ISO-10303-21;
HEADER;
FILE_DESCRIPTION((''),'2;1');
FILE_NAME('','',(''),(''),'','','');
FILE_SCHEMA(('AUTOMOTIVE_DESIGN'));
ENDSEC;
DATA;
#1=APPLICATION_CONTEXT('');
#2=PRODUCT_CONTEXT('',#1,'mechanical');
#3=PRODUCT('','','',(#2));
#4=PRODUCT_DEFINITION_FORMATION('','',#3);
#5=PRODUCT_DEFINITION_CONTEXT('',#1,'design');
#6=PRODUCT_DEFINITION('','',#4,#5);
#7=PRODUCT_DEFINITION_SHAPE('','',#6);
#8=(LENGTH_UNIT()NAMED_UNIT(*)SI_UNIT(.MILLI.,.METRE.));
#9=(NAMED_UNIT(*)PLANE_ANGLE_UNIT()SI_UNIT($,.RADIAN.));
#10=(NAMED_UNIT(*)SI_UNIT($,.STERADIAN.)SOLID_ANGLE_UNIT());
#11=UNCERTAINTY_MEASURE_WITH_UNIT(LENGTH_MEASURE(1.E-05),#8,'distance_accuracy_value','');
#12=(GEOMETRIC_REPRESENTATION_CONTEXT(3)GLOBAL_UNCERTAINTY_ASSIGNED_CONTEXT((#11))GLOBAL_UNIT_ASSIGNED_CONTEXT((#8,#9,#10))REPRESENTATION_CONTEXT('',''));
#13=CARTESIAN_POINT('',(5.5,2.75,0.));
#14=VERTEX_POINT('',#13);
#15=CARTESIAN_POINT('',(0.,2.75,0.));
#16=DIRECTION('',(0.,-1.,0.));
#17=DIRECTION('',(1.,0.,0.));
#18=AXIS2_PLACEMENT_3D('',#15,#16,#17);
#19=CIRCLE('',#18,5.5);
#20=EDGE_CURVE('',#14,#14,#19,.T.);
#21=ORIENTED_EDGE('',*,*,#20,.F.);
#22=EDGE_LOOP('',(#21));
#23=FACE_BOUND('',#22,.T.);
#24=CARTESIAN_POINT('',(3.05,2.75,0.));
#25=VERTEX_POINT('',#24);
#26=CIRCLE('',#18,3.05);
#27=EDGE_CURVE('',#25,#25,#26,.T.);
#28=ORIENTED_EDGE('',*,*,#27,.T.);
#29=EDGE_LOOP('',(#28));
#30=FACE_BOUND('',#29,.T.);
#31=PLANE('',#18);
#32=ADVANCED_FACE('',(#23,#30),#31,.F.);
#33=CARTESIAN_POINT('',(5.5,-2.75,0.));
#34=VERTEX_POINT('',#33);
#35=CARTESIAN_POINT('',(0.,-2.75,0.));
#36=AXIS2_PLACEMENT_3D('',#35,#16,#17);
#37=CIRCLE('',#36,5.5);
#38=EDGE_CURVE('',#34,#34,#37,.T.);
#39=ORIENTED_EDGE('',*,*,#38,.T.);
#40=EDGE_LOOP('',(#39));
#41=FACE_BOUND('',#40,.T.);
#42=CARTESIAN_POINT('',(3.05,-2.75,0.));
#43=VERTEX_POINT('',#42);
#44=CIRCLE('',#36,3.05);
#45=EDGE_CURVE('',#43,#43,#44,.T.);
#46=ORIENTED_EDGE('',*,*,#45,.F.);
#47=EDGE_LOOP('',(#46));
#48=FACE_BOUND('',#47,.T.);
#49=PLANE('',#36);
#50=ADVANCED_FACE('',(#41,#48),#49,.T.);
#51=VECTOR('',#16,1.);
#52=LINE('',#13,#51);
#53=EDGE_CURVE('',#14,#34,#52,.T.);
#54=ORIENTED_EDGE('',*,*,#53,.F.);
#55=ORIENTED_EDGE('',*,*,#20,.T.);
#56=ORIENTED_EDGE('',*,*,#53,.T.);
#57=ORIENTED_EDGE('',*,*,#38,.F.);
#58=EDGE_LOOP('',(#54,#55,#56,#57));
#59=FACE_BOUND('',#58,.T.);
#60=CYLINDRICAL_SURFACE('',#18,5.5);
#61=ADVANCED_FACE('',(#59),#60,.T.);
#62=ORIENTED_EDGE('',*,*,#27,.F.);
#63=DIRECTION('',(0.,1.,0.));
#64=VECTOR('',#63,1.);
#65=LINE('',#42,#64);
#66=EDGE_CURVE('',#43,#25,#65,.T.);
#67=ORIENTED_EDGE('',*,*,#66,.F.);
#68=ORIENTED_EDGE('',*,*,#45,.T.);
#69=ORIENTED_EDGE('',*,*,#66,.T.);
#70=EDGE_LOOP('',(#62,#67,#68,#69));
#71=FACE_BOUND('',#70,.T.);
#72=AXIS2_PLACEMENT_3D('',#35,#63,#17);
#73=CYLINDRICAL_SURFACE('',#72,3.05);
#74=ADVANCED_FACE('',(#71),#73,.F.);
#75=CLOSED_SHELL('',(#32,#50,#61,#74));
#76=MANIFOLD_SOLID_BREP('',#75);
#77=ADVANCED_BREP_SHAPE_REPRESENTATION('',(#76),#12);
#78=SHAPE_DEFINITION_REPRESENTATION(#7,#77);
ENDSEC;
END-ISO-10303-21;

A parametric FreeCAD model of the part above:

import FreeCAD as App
import Part
import Sketcher
from FreeCAD import Vector

doc = App.newDocument("Part")
params = doc.addObject("Spreadsheet::Sheet", "Params")
for row, (alias, value) in enumerate([
    ("sketch1_height", "5.5 mm"),
    ("sketch1_width", "2.45 mm"),
    ("revolution_angle", "360 deg"),
], start=1):
    params.set(f"A{row}", alias)
    params.set(f"B{row}", "=" + value)
    params.setAlias(f"B{row}", alias)

body = doc.addObject("PartDesign::Body", "Body")

# Sketch on XY plane
sketch1 = doc.addObject("Sketcher::SketchObject", "Sketch")
body.addObject(sketch1)
sketch1.AttachmentSupport = (doc.XY_Plane, [""])
sketch1.MapMode = "FlatFace"
sketch1.addGeometry([
    Part.LineSegment(Vector(5.5, 2.8, 0), Vector(3, 2.8, 0)),
    Part.LineSegment(Vector(3, 2.8, 0), Vector(3, -2.8, 0)),
    Part.LineSegment(Vector(3, -2.8, 0), Vector(5.5, -2.8, 0)),
    Part.LineSegment(Vector(5.5, -2.8, 0), Vector(5.5, 2.8, 0)),
], False)
sketch1.addConstraint([
    Sketcher.Constraint("Coincident", 0, 2, 1, 1),
    Sketcher.Constraint("Coincident", 1, 2, 2, 1),
    Sketcher.Constraint("Coincident", 2, 2, 3, 1),
    Sketcher.Constraint("Coincident", 3, 2, 0, 1),
    Sketcher.Constraint("Horizontal", 0),
    Sketcher.Constraint("Vertical", 1),
    Sketcher.Constraint("Horizontal", 2),
    Sketcher.Constraint("Vertical", 3),
    Sketcher.Constraint("DistanceY", 1, 2, 1, 1, 5.5),
    Sketcher.Constraint("DistanceX", -1, 1, 2, 2, 5.5),
    Sketcher.Constraint("DistanceX", 0, 2, 0, 1, 2.45),
    Sketcher.Constraint("DistanceY", -1, 1, 0, 2, 2.75),
])
sketch1.setExpression("Constraints[8]", "Params.sketch1_height")
sketch1.setExpression("Constraints[10]", "Params.sketch1_width")
revolution = doc.addObject("PartDesign::Revolution", "Revolution")
body.addObject(revolution)
revolution.Profile = sketch1
revolution.ReferenceAxis = (sketch1, ["V_Axis"])
revolution.setExpression("Angle", "Params.revolution_angle")

doc.recompute()
